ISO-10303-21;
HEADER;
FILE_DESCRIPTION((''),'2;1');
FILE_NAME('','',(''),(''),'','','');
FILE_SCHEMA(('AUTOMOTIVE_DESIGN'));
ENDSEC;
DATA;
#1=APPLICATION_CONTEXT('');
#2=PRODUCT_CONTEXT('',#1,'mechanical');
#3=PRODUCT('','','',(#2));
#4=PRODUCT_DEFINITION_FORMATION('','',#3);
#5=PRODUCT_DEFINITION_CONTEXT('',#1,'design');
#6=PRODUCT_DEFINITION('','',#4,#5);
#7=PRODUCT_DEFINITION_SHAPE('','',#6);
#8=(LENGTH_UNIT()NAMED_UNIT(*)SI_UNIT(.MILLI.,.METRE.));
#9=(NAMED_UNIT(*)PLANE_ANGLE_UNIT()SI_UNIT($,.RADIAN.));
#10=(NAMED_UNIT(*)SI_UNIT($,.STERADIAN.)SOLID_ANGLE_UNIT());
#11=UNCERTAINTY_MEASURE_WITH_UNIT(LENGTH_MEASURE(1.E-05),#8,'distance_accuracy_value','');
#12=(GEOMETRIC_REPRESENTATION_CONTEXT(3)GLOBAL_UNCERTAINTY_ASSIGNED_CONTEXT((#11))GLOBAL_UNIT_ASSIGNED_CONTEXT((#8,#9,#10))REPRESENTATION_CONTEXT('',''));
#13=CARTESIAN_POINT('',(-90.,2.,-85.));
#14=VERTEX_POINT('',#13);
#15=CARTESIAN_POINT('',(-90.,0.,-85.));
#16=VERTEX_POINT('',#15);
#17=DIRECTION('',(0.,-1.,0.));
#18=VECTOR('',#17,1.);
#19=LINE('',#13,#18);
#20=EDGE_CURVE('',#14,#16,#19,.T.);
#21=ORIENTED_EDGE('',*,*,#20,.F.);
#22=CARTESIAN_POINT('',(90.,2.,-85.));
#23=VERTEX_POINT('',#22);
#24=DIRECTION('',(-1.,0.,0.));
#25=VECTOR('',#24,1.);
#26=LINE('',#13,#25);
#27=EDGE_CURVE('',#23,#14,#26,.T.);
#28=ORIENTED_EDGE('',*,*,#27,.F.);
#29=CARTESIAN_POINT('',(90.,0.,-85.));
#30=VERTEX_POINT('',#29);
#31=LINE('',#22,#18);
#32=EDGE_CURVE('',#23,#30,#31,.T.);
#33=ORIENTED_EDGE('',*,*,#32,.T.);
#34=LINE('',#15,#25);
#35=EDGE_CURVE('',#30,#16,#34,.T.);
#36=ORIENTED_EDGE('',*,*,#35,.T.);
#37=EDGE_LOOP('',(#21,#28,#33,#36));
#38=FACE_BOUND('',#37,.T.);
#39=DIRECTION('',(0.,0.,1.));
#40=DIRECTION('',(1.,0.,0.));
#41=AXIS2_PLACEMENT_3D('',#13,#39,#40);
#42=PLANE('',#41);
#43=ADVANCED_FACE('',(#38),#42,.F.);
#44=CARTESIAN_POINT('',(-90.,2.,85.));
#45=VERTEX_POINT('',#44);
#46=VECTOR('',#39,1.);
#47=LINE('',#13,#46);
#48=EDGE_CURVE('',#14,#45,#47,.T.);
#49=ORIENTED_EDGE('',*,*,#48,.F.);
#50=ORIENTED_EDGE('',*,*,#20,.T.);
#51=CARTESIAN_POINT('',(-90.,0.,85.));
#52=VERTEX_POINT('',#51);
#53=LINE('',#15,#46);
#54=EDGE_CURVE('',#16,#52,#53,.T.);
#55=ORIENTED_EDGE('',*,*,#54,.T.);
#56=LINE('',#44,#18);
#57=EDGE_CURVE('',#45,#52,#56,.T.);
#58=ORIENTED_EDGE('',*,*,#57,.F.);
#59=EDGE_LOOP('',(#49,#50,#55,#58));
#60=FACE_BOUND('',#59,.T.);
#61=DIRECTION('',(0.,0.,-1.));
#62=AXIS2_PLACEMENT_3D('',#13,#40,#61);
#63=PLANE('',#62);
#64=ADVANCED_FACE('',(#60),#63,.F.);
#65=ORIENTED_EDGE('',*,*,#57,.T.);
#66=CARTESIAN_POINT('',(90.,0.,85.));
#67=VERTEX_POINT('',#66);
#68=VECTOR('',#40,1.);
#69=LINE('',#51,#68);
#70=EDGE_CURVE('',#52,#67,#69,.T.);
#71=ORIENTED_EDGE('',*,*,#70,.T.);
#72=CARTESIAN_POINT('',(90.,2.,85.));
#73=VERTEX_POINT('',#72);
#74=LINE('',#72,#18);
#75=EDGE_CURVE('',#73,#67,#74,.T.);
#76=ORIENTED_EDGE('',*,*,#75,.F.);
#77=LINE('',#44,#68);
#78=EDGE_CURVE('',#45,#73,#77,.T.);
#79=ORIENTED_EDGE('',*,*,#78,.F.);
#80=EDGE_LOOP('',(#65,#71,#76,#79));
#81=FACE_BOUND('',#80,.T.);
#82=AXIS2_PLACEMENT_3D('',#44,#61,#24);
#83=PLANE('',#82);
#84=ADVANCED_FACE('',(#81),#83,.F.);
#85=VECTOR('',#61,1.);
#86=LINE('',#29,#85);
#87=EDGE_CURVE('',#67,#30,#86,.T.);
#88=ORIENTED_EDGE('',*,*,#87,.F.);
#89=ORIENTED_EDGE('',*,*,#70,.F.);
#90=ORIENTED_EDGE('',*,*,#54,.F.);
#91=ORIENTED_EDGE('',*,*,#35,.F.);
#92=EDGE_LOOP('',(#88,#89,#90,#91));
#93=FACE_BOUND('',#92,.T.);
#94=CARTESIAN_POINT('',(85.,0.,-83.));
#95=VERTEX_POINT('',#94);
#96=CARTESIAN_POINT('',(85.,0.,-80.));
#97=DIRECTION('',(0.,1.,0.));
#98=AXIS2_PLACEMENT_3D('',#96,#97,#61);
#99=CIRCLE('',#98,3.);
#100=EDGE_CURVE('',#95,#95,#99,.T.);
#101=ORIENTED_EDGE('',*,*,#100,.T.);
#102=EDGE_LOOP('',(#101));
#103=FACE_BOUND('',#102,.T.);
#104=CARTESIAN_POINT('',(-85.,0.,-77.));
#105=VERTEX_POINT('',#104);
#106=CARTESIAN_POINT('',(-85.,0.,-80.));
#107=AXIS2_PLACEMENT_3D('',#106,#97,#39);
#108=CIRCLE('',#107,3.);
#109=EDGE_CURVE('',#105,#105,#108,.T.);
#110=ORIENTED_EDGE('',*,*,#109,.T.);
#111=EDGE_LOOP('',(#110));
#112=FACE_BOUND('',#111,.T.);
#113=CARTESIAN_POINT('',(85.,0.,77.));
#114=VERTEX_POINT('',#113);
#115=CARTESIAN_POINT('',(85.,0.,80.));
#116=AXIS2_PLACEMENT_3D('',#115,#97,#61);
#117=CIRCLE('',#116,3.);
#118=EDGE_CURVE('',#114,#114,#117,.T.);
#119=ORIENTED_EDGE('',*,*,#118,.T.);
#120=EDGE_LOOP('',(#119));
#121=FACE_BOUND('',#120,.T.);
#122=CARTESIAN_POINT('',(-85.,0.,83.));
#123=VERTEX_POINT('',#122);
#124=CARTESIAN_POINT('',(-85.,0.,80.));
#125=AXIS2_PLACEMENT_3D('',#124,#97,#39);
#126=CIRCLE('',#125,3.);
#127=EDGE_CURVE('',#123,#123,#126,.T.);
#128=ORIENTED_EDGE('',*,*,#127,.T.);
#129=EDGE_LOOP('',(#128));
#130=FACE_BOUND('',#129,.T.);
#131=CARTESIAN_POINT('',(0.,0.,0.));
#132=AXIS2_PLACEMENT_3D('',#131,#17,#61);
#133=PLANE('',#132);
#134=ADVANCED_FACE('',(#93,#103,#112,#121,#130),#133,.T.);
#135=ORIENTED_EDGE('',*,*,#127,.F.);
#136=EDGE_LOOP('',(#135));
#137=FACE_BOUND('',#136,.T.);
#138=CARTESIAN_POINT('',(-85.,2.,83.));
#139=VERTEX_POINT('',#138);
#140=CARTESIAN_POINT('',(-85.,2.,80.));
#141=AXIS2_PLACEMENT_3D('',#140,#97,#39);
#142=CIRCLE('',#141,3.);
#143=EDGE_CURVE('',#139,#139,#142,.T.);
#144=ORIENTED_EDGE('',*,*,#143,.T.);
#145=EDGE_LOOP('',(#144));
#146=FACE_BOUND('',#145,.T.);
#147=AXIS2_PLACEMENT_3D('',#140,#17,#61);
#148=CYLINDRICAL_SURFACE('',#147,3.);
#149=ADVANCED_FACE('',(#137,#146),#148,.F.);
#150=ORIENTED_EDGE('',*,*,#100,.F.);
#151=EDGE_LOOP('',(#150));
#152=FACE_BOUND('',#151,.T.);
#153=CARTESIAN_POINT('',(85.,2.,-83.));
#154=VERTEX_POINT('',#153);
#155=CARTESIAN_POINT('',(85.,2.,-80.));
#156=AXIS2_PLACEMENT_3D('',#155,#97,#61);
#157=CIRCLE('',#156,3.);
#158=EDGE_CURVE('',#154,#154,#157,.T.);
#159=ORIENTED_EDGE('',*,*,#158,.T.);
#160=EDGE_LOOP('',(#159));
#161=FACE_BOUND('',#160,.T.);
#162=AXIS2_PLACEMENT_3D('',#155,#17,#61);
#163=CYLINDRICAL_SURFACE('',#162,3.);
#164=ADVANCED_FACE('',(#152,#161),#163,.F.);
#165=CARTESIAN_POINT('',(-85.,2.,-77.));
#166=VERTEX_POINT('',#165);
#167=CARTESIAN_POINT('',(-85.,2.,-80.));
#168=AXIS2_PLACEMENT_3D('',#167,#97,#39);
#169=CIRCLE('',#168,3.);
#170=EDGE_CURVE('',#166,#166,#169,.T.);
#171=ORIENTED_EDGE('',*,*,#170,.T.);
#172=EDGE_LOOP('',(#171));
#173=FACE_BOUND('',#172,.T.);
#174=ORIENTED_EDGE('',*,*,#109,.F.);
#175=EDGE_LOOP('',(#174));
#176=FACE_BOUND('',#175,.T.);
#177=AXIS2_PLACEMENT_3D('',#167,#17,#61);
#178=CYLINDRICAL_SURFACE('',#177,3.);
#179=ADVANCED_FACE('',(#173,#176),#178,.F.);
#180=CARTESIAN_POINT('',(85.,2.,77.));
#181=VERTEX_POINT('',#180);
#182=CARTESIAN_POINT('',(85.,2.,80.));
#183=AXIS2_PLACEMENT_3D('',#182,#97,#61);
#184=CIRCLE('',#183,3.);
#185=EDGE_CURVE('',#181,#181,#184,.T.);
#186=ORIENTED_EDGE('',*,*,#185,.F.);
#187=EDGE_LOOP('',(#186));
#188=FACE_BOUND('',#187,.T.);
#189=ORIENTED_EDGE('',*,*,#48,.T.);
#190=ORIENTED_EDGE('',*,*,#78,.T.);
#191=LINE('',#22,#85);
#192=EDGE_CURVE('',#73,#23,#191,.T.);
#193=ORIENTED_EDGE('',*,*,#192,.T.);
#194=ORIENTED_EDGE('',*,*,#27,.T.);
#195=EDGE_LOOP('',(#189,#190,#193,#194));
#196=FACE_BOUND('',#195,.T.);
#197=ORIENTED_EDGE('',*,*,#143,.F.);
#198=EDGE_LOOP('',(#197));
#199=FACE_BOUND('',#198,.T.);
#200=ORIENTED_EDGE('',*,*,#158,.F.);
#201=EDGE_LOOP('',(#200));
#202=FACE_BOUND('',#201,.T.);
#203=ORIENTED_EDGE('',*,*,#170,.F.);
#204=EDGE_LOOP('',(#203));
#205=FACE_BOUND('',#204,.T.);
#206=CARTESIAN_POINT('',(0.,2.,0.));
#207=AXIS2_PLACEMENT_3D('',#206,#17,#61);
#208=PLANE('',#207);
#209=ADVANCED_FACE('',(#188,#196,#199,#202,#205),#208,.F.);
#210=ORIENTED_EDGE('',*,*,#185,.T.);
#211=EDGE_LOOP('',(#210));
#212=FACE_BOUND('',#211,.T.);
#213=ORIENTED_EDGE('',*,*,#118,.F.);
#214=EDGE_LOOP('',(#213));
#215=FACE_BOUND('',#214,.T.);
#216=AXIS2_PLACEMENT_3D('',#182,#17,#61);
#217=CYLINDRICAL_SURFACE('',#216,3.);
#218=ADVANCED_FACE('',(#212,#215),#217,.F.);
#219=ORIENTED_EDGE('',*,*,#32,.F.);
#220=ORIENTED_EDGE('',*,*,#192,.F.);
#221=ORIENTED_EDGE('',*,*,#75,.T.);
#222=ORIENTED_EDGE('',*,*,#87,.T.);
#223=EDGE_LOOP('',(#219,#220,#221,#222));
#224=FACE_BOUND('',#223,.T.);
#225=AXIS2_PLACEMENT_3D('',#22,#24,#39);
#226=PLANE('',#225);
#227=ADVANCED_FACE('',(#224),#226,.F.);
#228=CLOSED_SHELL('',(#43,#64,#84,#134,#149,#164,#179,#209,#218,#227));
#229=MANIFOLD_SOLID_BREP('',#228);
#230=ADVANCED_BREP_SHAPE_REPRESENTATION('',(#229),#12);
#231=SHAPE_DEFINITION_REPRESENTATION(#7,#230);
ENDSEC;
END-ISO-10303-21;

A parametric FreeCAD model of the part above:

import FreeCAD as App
import Part
import Sketcher
from FreeCAD import Vector


def add_polygon(sketch, points):
    """Adds a closed chain of lines whose ends are joined by coincident constraints."""
    first, n = sketch.GeometryCount, len(points)
    for a, b in zip(points, points[1:] + points[:1]):
        sketch.addGeometry(Part.LineSegment(App.Vector(*a, 0), App.Vector(*b, 0)), False)
    for i in range(n):
        sketch.addConstraint(Sketcher.Constraint("Coincident", first + i, 2, first + (i + 1) % n, 1))

doc = App.newDocument("Part")
body = doc.addObject("PartDesign::Body", "Body")

# Sketch on XZ plane
sketch1 = doc.addObject("Sketcher::SketchObject", "Sketch")
body.addObject(sketch1)
sketch1.AttachmentSupport = (doc.XZ_Plane, [""])
sketch1.MapMode = "FlatFace"
add_polygon(sketch1, [(-90, -85), (-90, 85), (90, 85), (90, -85)])  # lines 0-3
sketch1.addGeometry(Part.Circle(Vector(-85, 80, 0), Vector(0, 0, 1), 3), False)  # 4
sketch1.addGeometry(Part.Circle(Vector(85, 80, 0), Vector(0, 0, 1), 3), False)  # 5
sketch1.addGeometry(Part.Circle(Vector(-85, -80, 0), Vector(0, 0, 1), 3), False)  # 6
sketch1.addGeometry(Part.Circle(Vector(85, -80, 0), Vector(0, 0, 1), 3), False)  # 7
sketch1.addConstraint([
    Sketcher.Constraint("Vertical", 0),
    Sketcher.Constraint("Horizontal", 1),
    Sketcher.Constraint("Vertical", 2),
    Sketcher.Constraint("Horizontal", 3),
    Sketcher.Constraint("Equal", 4, 5),
    Sketcher.Constraint("Equal", 5, 6),
    Sketcher.Constraint("Equal", 6, 7),
    Sketcher.Constraint("Symmetric", 5, 3, 6, 3, -1, 1),
    Sketcher.Constraint("Symmetric", 4, 3, 7, 3, -1, 1),
    Sketcher.Constraint("Symmetric", 0, 2, 2, 2, -1, 1),
    Sketcher.Constraint("Symmetric", 4, 3, 5, 3, -2),
    Sketcher.Constraint("Diameter", 4, 6.0),
    Sketcher.Constraint("DistanceX", 1, 1, 1, 2, 180.0),
    Sketcher.Constraint("DistanceY", 0, 1, 0, 2, 170.0),
    Sketcher.Constraint("DistanceX", 4, 3, -1, 1, 85.0),
    Sketcher.Constraint("DistanceY", -1, 1, 4, 3, 80.0),
])
pad1 = doc.addObject("PartDesign::Pad", "Pad")
body.addObject(pad1)
pad1.Profile = sketch1
pad1.Length = 2
pad1.Reversed = True

doc.recompute()
